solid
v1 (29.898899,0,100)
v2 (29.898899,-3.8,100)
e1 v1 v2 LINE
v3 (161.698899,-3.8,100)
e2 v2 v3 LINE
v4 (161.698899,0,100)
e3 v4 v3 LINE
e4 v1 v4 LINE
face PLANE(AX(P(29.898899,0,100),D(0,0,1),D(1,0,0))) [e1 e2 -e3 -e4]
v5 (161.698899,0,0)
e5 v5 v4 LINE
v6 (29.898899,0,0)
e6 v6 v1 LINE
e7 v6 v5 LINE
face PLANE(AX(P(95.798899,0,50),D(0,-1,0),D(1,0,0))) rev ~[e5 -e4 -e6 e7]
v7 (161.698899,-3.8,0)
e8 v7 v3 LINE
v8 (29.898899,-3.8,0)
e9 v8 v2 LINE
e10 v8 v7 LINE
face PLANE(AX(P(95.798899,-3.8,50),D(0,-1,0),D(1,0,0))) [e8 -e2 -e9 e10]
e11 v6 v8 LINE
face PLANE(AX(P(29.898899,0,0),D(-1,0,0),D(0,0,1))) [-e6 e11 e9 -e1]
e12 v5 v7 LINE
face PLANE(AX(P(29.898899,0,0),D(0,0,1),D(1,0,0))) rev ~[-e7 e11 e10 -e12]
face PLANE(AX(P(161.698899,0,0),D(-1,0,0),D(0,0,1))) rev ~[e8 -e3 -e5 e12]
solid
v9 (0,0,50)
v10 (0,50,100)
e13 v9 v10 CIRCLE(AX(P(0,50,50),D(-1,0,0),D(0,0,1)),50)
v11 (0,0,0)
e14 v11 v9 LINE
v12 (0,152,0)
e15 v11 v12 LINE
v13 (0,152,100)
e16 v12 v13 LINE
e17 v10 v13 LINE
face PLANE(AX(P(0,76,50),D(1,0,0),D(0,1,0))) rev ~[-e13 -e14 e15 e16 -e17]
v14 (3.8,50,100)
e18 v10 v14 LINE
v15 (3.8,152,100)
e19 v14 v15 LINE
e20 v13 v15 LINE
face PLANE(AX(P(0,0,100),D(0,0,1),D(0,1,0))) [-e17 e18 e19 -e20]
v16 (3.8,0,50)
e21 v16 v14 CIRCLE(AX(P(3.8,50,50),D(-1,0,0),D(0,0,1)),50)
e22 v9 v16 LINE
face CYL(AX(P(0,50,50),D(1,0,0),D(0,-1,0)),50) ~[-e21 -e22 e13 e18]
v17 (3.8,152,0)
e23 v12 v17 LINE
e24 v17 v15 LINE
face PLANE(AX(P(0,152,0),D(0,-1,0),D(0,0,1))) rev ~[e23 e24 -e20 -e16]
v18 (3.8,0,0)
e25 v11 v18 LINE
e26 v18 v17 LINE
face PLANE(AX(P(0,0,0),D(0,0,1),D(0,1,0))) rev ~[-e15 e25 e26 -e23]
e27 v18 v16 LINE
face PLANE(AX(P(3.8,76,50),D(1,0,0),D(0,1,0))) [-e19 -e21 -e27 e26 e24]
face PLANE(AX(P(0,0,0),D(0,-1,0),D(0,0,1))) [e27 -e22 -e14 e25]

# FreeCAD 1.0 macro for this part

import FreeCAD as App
import Part
import Sketcher
from FreeCAD import Vector
Q = App.Units.Quantity


def edges_at(feature, points):
    """Names of the edges that pass closest to the given points."""
    edges = feature.Shape.Edges
    near = lambda p: min(range(len(edges)), key=lambda i: edges[i].distToShape(Part.Vertex(*p))[0])
    return sorted({f"Edge{near(p) + 1}" for p in points})

doc = App.newDocument("Part")
params = doc.addObject("Spreadsheet::Sheet", "Params")
for row, (alias, value) in enumerate([
    ("sketch1_width", "152 mm"),
    ("sketch1_height", "100 mm"),
    ("pad1_length", "3.8 mm"),
    ("fillet_radius", "50 mm"),
    ("sketch2_height", "100 mm"),
    ("sketch2_width", "131.8 mm"),
    ("pad2_length", "3.8 mm"),
], start=1):
    params.set(f"A{row}", alias)
    params.set(f"B{row}", "=" + value)
    params.setAlias(f"B{row}", alias)

body = doc.addObject("PartDesign::Body", "Body")

sketch1 = body.newObject("Sketcher::SketchObject", "Sketch")
sketch1.AttachmentSupport = (doc.getObject("YZ_Plane"), [""])
sketch1.MapMode = "FlatFace"
sketch1.addGeometry([
    Part.LineSegment(Vector(0, 100, 0), Vector(0, 0, 0)),
    Part.LineSegment(Vector(0, 0, 0), Vector(152, 0, 0)),
    Part.LineSegment(Vector(152, 0, 0), Vector(152, 100, 0)),
    Part.LineSegment(Vector(152, 100, 0), Vector(0, 100, 0)),
], False)
sketch1.addConstraint([
    Sketcher.Constraint("Coincident", 0, 2, 1, 1),
    Sketcher.Constraint("Coincident", 1, 2, 2, 1),
    Sketcher.Constraint("Coincident", 2, 2, 3, 1),
    Sketcher.Constraint("Coincident", 3, 2, 0, 1),
    Sketcher.Constraint("Vertical", 0),
    Sketcher.Constraint("Horizontal", 1),
    Sketcher.Constraint("Vertical", 2),
    Sketcher.Constraint("Horizontal", 3),
    Sketcher.Constraint("Coincident", 0, 2, -1, 1),
    Sketcher.Constraint("DistanceX", 1, 1, 1, 2, Q("152 mm")),
    Sketcher.Constraint("DistanceY", 0, 2, 0, 1, Q("100 mm")),
])
sketch1.setExpression("Constraints[9]", "Params.sketch1_width")
sketch1.setExpression("Constraints[10]", "Params.sketch1_height")
pad1 = body.newObject("PartDesign::Pad", "Pad")
pad1.Profile = sketch1
pad1.setExpression("Length", "Params.pad1_length")
doc.recompute()

fillet = body.newObject("PartDesign::Fillet", "Fillet")
fillet.Base = (pad1, edges_at(pad1, [(1.9, 0, 100)]))
fillet.setExpression("Radius", "Params.fillet_radius")
body2 = doc.addObject("PartDesign::Body", "Body001")

sketch2 = body2.newObject("Sketcher::SketchObject", "Sketch001")
sketch2.AttachmentSupport = (doc.getObject("XZ_Plane001"), [""])
sketch2.MapMode = "FlatFace"
sketch2.addGeometry([
    Part.LineSegment(Vector(30, 100, 0), Vector(30, 0, 0)),
    Part.LineSegment(Vector(30, 0, 0), Vector(162, 0, 0)),
    Part.LineSegment(Vector(162, 0, 0), Vector(162, 100, 0)),
    Part.LineSegment(Vector(162, 100, 0), Vector(30, 100, 0)),
], False)
sketch2.addConstraint([
    Sketcher.Constraint("Coincident", 0, 2, 1, 1),
    Sketcher.Constraint("Coincident", 1, 2, 2, 1),
    Sketcher.Constraint("Coincident", 2, 2, 3, 1),
    Sketcher.Constraint("Coincident", 3, 2, 0, 1),
    Sketcher.Constraint("Vertical", 0),
    Sketcher.Constraint("Horizontal", 1),
    Sketcher.Constraint("Vertical", 2),
    Sketcher.Constraint("Horizontal", 3),
    Sketcher.Constraint("PointOnObject", 0, 2, -1),
    Sketcher.Constraint("DistanceY", 0, 2, 0, 1, Q("100 mm")),
    Sketcher.Constraint("DistanceX", 1, 1, 1, 2, Q("131.8 mm")),
    Sketcher.Constraint("DistanceX", -1, 1, 0, 2, Q("29.898899 mm")),
])
sketch2.setExpression("Constraints[9]", "Params.sketch2_height")
sketch2.setExpression("Constraints[10]", "Params.sketch2_width")
pad2 = body2.newObject("PartDesign::Pad", "Pad001")
pad2.Profile = sketch2
pad2.setExpression("Length", "Params.pad2_length")

doc.recompute()
